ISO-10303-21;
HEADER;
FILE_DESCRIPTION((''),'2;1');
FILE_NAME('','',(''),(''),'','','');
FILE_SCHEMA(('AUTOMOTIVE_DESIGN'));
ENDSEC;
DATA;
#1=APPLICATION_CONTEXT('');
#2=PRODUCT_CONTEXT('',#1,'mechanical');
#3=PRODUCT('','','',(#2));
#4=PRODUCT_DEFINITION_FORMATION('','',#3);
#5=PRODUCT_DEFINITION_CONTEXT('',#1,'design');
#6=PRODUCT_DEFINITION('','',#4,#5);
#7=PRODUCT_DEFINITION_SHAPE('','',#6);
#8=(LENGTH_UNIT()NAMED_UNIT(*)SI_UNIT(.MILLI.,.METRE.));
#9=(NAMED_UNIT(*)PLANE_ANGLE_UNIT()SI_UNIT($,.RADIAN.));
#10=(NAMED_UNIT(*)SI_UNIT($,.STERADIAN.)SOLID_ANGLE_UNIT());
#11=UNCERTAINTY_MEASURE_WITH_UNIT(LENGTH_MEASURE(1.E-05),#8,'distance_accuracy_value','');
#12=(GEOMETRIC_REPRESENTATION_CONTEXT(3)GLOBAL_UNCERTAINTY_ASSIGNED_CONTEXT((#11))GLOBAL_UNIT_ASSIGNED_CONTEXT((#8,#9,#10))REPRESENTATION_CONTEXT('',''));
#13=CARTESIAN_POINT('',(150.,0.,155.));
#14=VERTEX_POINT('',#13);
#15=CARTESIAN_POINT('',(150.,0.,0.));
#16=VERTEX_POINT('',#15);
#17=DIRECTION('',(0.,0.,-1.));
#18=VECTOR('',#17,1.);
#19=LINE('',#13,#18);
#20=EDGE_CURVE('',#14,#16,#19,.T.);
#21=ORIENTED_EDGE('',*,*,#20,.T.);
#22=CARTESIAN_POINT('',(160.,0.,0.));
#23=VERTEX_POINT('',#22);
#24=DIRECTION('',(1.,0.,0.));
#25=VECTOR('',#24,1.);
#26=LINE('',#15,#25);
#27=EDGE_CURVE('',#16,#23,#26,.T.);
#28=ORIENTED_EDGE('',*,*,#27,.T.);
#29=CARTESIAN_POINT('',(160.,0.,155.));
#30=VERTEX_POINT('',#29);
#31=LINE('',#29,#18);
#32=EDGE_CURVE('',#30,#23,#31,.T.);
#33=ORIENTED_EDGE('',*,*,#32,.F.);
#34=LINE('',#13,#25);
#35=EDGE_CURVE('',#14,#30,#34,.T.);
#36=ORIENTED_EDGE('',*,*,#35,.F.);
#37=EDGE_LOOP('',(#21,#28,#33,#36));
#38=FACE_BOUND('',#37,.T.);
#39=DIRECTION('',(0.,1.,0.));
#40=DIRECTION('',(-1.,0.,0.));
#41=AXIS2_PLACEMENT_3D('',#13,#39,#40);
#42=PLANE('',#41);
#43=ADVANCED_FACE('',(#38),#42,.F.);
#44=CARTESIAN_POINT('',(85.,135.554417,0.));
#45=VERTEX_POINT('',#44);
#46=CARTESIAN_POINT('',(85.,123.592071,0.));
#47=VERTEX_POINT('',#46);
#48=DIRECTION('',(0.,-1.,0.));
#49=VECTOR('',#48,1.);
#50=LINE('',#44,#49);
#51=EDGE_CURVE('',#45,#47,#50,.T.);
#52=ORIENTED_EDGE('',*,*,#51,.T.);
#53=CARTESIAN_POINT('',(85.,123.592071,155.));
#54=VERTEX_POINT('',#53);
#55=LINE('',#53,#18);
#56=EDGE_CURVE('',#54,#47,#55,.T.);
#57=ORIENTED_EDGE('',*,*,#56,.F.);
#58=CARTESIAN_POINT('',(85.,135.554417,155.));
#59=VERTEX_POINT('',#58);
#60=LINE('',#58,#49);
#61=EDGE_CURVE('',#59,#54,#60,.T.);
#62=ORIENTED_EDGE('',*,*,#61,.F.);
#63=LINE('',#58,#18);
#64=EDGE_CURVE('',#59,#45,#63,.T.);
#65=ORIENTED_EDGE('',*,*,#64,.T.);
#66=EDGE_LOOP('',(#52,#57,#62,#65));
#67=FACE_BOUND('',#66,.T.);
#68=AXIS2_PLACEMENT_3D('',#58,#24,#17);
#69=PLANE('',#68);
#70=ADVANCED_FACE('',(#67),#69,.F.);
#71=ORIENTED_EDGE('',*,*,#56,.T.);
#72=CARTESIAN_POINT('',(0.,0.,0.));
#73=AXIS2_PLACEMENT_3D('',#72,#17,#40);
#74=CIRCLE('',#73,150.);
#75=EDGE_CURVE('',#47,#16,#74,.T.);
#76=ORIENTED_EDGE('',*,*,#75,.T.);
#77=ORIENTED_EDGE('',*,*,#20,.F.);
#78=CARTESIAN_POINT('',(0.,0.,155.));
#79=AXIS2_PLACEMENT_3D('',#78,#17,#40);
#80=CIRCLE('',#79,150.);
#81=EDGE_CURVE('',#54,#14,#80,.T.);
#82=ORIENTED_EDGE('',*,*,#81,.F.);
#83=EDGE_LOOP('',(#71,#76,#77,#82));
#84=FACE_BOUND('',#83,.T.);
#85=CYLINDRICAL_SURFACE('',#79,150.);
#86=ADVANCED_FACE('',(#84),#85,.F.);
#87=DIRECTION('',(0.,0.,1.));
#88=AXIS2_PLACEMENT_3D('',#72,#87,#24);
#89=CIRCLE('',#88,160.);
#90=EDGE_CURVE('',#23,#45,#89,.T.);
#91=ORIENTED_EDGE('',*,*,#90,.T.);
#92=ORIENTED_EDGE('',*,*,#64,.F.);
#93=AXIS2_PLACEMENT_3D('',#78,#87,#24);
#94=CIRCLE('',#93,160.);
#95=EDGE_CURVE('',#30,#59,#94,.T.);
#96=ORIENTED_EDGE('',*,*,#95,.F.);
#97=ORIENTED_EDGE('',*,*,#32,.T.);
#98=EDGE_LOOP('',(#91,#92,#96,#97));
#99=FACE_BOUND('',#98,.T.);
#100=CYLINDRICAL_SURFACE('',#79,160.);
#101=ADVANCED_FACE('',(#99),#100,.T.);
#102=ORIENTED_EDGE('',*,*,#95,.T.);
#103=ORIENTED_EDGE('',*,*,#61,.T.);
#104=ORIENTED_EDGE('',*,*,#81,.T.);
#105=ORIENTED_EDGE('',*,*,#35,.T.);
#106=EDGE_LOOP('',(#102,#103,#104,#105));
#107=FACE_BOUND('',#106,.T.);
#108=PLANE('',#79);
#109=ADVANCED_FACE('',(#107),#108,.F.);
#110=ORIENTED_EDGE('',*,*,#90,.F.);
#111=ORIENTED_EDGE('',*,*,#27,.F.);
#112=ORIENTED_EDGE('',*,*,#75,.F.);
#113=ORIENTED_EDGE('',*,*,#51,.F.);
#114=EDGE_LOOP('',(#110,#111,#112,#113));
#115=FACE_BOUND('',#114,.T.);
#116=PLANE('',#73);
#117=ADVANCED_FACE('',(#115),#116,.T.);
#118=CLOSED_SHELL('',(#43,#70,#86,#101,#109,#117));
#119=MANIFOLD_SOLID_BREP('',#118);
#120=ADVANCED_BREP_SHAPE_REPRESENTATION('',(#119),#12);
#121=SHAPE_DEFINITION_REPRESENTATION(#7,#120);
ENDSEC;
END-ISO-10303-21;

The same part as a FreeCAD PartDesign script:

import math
import FreeCAD as App
import Part
import Sketcher

doc = App.newDocument("Part")
params = doc.addObject("Spreadsheet::Sheet", "Params")
for row, (alias, value) in enumerate([
    ("sketch1_radius", "150 mm"),
    ("sketch1_radius2", "160 mm"),
    ("pad1_length", "155 mm"),
], start=1):
    params.set(f"A{row}", alias)
    params.set(f"B{row}", "=" + value)
    params.setAlias(f"B{row}", alias)

body = doc.addObject("PartDesign::Body", "Body")

# Sketch on XY plane
sketch1 = body.newObject("Sketcher::SketchObject", "Sketch")
sketch1.AttachmentSupport = (doc.getObject("XY_Plane"), [""])
sketch1.MapMode = "FlatFace"
sketch1.addGeometry(Part.LineSegment(App.Vector(85, 136, 0), App.Vector(85, 124, 0)), False)
sketch1.addGeometry(Part.ArcOfCircle(Part.Circle(App.Vector(0, 0, 0), App.Vector(0, 0, 1), 150), math.radians(0), math.radians(55)), False)
sketch1.addGeometry(Part.LineSegment(App.Vector(150, 0, 0), App.Vector(160, 0, 0)), False)
sketch1.addGeometry(Part.ArcOfCircle(Part.Circle(App.Vector(0, 0, 0), App.Vector(0, 0, 1), 160), math.radians(0), math.radians(58)), False)
sketch1.addConstraint(Sketcher.Constraint("Coincident", 0, 2, 1, 2))
sketch1.addConstraint(Sketcher.Constraint("Coincident", 1, 1, 2, 1))
sketch1.addConstraint(Sketcher.Constraint("Coincident", 2, 2, 3, 1))
sketch1.addConstraint(Sketcher.Constraint("Coincident", 3, 2, 0, 1))
sketch1.addConstraint(Sketcher.Constraint("Vertical", 0))
sketch1.addConstraint(Sketcher.Constraint("Horizontal", 2))
sketch1.addConstraint(Sketcher.Constraint("Coincident", 1, 3, -1, 1))
sketch1.addConstraint(Sketcher.Constraint("Coincident", 3, 3, -1, 1))
sketch1.addConstraint(Sketcher.Constraint("PointOnObject", 1, 1, -1))
sketch1.addConstraint(Sketcher.Constraint("Radius", 1, 150.0))
sketch1.addConstraint(Sketcher.Constraint("Radius", 3, 160.0))
sketch1.addConstraint(Sketcher.Constraint("DistanceX", -1, 1, 0, 2, 85.0))
sketch1.setExpression("Constraints[9]", "Params.sketch1_radius")
sketch1.setExpression("Constraints[10]", "Params.sketch1_radius2")
pad1 = body.newObject("PartDesign::Pad", "Pad")
pad1.Profile = sketch1
pad1.setExpression("Length", "Params.pad1_length")

doc.recompute()
